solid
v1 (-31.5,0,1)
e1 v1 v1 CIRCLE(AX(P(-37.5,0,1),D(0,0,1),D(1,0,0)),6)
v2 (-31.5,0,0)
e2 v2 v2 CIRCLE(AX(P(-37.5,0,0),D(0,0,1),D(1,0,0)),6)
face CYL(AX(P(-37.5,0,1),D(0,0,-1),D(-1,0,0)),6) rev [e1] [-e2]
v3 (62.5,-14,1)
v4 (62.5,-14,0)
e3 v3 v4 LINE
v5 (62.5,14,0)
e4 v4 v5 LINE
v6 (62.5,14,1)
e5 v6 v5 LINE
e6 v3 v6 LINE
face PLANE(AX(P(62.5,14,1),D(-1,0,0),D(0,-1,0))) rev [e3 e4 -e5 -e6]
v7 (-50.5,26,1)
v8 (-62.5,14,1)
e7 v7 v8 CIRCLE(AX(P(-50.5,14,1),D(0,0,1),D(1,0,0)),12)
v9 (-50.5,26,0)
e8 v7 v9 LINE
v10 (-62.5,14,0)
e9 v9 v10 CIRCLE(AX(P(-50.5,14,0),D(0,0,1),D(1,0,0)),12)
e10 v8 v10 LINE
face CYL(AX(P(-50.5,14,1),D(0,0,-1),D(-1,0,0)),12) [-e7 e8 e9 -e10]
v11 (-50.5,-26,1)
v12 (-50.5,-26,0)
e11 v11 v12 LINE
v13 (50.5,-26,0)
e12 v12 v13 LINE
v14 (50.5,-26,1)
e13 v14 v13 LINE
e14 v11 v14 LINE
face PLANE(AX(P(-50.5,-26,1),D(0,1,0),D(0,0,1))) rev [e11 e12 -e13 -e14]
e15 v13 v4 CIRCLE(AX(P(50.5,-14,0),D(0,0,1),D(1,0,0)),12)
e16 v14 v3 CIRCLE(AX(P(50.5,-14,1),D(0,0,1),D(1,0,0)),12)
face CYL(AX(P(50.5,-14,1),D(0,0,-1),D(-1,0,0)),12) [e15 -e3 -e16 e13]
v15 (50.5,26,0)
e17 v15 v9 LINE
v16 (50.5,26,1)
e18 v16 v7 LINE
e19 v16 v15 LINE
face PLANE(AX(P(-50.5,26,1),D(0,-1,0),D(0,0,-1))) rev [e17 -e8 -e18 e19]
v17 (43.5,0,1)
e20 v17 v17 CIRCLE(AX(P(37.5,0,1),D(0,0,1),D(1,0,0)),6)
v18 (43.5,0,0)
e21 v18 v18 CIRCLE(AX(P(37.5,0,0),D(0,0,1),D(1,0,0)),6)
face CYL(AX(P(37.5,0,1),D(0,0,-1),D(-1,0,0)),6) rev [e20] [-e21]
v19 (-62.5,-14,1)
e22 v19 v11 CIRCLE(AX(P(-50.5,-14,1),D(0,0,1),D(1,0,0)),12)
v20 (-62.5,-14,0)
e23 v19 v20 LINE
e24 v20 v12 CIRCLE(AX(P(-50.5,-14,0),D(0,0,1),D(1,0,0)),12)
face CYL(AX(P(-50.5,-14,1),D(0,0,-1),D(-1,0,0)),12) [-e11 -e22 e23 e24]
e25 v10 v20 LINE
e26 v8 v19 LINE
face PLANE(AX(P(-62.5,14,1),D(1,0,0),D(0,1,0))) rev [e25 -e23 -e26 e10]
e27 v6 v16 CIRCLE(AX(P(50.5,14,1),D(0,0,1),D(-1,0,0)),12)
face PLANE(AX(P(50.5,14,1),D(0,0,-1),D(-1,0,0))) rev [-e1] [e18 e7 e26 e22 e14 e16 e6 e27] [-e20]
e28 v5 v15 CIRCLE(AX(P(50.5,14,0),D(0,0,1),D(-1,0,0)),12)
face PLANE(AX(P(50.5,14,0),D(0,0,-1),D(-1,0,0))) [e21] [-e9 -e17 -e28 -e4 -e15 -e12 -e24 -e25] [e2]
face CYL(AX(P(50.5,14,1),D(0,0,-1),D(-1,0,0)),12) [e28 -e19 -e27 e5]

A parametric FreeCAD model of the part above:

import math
import FreeCAD as App
import Part
import Sketcher

doc = App.newDocument("Part")
params = doc.addObject("Spreadsheet::Sheet", "Params")
for row, (alias, value) in enumerate([
    ("sketch1_diameter", "12 mm"),
    ("sketch1_radius", "12 mm"),
    ("sketch1_width", "101 mm"),
    ("sketch1_height", "28 mm"),
    ("pad1_length", "1 mm"),
], start=1):
    params.set(f"A{row}", alias)
    params.set(f"B{row}", "=" + value)
    params.setAlias(f"B{row}", alias)

body = doc.addObject("PartDesign::Body", "Body")

# Sketch on XY plane
sketch1 = body.newObject("Sketcher::SketchObject", "Sketch")
sketch1.AttachmentSupport = (doc.getObject("XY_Plane"), [""])
sketch1.MapMode = "FlatFace"
sketch1.addGeometry([
    Part.LineSegment(App.Vector(50.5, 26, 0), App.Vector(-50.5, 26, 0)),  # 0
    Part.ArcOfCircle(Part.Circle(App.Vector(-50.5, 14, 0), App.Vector(0, 0, 1), 12), math.radians(90), math.radians(180)),  # 1
    Part.LineSegment(App.Vector(-62.5, 14, 0), App.Vector(-62.5, -14, 0)),  # 2
    Part.ArcOfCircle(Part.Circle(App.Vector(-50.5, -14, 0), App.Vector(0, 0, 1), 12), math.radians(-180), math.radians(-90)),  # 3
    Part.LineSegment(App.Vector(-50.5, -26, 0), App.Vector(50.5, -26, 0)),  # 4
    Part.ArcOfCircle(Part.Circle(App.Vector(50.5, -14, 0), App.Vector(0, 0, 1), 12), math.radians(-90), math.radians(0)),  # 5
    Part.LineSegment(App.Vector(62.5, -14, 0), App.Vector(62.5, 14, 0)),  # 6
    Part.ArcOfCircle(Part.Circle(App.Vector(50.5, 14, 0), App.Vector(0, 0, 1), 12), math.radians(0), math.radians(90)),  # 7
    Part.Circle(App.Vector(37.5, 0, 0), App.Vector(0, 0, 1), 6),  # 8
    Part.Circle(App.Vector(-37.5, 0, 0), App.Vector(0, 0, 1), 6),  # 9
], False)
sketch1.addConstraint([
    Sketcher.Constraint("Tangent", 0, 2, 1, 1),
    Sketcher.Constraint("Tangent", 1, 2, 2, 1),
    Sketcher.Constraint("Tangent", 2, 2, 3, 1),
    Sketcher.Constraint("Tangent", 3, 2, 4, 1),
    Sketcher.Constraint("Tangent", 4, 2, 5, 1),
    Sketcher.Constraint("Tangent", 5, 2, 6, 1),
    Sketcher.Constraint("Tangent", 6, 2, 7, 1),
    Sketcher.Constraint("Tangent", 7, 2, 0, 1),
    Sketcher.Constraint("Horizontal", 0),
    Sketcher.Constraint("Vertical", 2),
    Sketcher.Constraint("Horizontal", 4),
    Sketcher.Constraint("Vertical", 6),
    Sketcher.Constraint("Equal", 1, 3),
    Sketcher.Constraint("Equal", 3, 5),
    Sketcher.Constraint("Equal", 5, 7),
    Sketcher.Constraint("Equal", 8, 9),
    Sketcher.Constraint("Symmetric", 1, 3, 5, 3, -1, 1),
    Sketcher.Constraint("Symmetric", 8, 3, 9, 3, -1, 1),
    Sketcher.Constraint("PointOnObject", 8, 3, -1),
    Sketcher.Constraint("Diameter", 8, 12.0),
    Sketcher.Constraint("Radius", 1, 12.0),
    Sketcher.Constraint("DistanceX", 0, 2, 0, 1, 101.0),
    Sketcher.Constraint("DistanceY", 2, 2, 2, 1, 28.0),
    Sketcher.Constraint("DistanceX", 8, 3, 5, 3, 13.0),
])
sketch1.setExpression("Constraints[19]", "Params.sketch1_diameter")
sketch1.setExpression("Constraints[20]", "Params.sketch1_radius")
sketch1.setExpression("Constraints[21]", "Params.sketch1_width")
sketch1.setExpression("Constraints[22]", "Params.sketch1_height")
pad1 = body.newObject("PartDesign::Pad", "Pad")
pad1.Profile = sketch1
pad1.setExpression("Length", "Params.pad1_length")

doc.recompute()
